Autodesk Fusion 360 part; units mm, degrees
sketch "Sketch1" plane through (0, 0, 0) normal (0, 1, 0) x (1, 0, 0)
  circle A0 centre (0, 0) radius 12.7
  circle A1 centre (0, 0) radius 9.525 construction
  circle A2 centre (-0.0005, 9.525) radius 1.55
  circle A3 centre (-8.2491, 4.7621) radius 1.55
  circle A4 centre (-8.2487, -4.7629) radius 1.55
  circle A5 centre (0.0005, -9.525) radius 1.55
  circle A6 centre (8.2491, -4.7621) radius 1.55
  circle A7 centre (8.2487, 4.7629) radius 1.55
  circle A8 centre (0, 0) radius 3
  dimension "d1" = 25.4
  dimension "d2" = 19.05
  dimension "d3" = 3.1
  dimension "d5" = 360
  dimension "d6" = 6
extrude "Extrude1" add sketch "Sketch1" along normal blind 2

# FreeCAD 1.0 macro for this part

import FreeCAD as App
import Part
import Sketcher

V = App.Vector
Q = App.Units.Quantity

doc = App.newDocument("Part")
body = doc.addObject("PartDesign::Body", "Body")

# Sketch on XZ plane
sketch1 = doc.addObject("Sketcher::SketchObject", "Sketch")
body.addObject(sketch1)
sketch1.AttachmentSupport = (doc.XZ_Plane, [""])
sketch1.MapMode = "FlatFace"
sketch1.addGeometry([
    Part.Circle(V(0, 0, 0), V(0, 0, 1), 12.7),  # 0
    Part.Circle(V(-8.2, 4.8, 0), V(0, 0, 1), 1.6),  # 1
    Part.Circle(V(0, 0, 0), V(0, 0, 1), 3),  # 2
    Part.Circle(V(0, 9.5, 0), V(0, 0, 1), 1.6),  # 3
    Part.Circle(V(8.2, 4.8, 0), V(0, 0, 1), 1.6),  # 4
    Part.Circle(V(-8.2, -4.8, 0), V(0, 0, 1), 1.6),  # 5
    Part.Circle(V(0, -9.5, 0), V(0, 0, 1), 1.6),  # 6
    Part.Circle(V(8.2, -4.8, 0), V(0, 0, 1), 1.6),  # 7
], False)
sketch1.addConstraint([
    Sketcher.Constraint("Coincident", 0, 3, -1, 1),
    Sketcher.Constraint("Coincident", 2, 3, -1, 1),
    Sketcher.Constraint("Equal", 1, 3),
    Sketcher.Constraint("Equal", 3, 4),
    Sketcher.Constraint("Equal", 4, 5),
    Sketcher.Constraint("Equal", 5, 6),
    Sketcher.Constraint("Equal", 6, 7),
    Sketcher.Constraint("Symmetric", 4, 3, 5, 3, -1, 1),
    Sketcher.Constraint("Symmetric", 3, 3, 6, 3, -1, 1),
    Sketcher.Constraint("Symmetric", 1, 3, 7, 3, -1, 1),
    Sketcher.Constraint("Diameter", 2, Q("6 mm")),
    Sketcher.Constraint("Diameter", 0, Q("25.4 mm")),
    Sketcher.Constraint("Diameter", 1, Q("3.1 mm")),
    Sketcher.Constraint("DistanceY", -1, 1, 1, 3, Q("4.763 mm")),
    Sketcher.Constraint("DistanceY", -1, 1, 3, 3, Q("9.525 mm")),
    Sketcher.Constraint("DistanceX", -1, 1, 4, 3, Q("8.249 mm")),
    Sketcher.Constraint("DistanceY", -1, 1, 4, 3, Q("4.762 mm")),
    Sketcher.Constraint("DistanceX", 1, 3, -1, 1, Q("8.2487 mm")),
    Sketcher.Constraint("DistanceX", -1, 1, 3, 3, Q("0.0005 mm")),
])
pad1 = doc.addObject("PartDesign::Pad", "Pad")
body.addObject(pad1)
pad1.Profile = sketch1
pad1.Length = 2
pad1.Reversed = True

doc.recompute()
